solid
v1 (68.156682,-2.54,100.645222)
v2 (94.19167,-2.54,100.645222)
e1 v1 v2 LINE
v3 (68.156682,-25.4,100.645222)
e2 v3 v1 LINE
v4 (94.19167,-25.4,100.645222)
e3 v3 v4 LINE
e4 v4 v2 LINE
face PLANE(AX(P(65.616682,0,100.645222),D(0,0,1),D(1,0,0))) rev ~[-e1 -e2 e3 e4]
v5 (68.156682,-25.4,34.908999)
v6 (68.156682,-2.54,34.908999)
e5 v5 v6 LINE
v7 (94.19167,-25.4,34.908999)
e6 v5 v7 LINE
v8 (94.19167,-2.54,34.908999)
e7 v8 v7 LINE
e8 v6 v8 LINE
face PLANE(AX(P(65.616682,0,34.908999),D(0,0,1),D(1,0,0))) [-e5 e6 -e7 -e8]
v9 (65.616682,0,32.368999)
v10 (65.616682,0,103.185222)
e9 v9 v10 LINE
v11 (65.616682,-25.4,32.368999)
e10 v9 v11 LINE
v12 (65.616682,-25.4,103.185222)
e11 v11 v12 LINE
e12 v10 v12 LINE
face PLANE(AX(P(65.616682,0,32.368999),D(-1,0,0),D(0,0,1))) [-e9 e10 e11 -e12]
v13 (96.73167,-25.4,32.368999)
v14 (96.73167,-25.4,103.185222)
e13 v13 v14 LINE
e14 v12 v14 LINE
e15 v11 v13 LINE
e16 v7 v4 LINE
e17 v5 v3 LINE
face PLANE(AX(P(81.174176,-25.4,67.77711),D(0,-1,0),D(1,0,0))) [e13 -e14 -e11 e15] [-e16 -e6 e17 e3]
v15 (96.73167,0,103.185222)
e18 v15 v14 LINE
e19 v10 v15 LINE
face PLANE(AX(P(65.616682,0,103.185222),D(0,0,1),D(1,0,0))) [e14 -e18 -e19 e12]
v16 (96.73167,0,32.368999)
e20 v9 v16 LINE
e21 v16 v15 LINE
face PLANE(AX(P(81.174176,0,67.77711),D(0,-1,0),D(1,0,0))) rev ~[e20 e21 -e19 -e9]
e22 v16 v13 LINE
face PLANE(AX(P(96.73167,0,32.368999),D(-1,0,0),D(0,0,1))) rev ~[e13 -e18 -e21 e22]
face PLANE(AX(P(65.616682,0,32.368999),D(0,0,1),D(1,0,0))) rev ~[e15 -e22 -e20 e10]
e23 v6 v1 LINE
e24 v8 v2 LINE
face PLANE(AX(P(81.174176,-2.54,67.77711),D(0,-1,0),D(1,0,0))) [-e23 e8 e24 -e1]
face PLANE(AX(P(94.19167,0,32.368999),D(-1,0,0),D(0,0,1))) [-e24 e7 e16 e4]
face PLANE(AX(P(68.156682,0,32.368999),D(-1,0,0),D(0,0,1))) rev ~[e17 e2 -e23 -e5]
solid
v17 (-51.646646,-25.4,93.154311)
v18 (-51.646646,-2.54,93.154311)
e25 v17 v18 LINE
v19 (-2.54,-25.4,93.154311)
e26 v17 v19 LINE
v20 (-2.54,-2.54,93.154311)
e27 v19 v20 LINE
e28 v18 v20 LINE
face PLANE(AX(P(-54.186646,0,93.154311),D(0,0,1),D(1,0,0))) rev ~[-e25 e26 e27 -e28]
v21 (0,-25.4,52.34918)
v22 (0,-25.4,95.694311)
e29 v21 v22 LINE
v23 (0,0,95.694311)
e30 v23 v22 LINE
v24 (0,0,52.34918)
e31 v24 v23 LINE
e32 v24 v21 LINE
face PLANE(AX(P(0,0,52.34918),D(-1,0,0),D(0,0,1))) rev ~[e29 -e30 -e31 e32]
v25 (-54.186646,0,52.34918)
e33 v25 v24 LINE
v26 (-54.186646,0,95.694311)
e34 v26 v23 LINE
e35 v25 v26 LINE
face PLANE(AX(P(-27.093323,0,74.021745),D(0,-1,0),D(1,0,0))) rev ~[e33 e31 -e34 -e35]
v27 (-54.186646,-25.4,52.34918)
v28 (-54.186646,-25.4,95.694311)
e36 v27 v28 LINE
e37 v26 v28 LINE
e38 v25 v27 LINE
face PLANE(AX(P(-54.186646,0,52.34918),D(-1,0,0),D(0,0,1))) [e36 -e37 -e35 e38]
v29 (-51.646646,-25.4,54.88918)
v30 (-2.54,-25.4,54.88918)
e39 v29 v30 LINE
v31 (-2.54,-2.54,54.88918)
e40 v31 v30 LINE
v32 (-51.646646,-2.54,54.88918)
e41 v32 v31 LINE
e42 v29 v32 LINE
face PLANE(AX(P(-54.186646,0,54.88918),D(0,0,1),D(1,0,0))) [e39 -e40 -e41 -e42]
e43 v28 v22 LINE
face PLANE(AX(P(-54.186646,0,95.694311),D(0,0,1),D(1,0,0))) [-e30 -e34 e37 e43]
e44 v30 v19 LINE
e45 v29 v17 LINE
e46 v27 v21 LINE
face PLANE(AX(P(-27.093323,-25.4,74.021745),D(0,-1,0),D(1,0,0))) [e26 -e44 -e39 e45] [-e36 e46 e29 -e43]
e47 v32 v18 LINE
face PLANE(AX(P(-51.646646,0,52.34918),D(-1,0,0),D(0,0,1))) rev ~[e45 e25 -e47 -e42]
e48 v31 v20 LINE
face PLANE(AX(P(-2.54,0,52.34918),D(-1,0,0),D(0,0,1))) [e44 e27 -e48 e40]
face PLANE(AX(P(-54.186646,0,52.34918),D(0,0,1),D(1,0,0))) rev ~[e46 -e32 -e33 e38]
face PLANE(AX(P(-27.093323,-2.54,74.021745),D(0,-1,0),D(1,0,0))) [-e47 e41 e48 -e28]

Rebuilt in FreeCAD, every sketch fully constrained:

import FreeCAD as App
import Part
import Sketcher
Q = App.Units.Quantity


def faces_at(feature, points):
    """Names of the faces that lie closest to the given points."""
    faces = feature.Shape.Faces
    near = lambda p: min(range(len(faces)), key=lambda i: faces[i].distToShape(Part.Vertex(*p))[0])
    return sorted({f"Face{near(p) + 1}" for p in points})

doc = App.newDocument("Part")
params = doc.addObject("Spreadsheet::Sheet", "Params")
for row, (alias, value) in enumerate([
    ("pad1_length", "1 in"),
    ("thickness_wall", "0.1 in"),
    ("pad2_length", "1 in"),
    ("thickness2_wall", "0.1 in"),
], start=1):
    params.set(f"A{row}", alias)
    params.set(f"B{row}", "=" + value)
    params.setAlias(f"B{row}", alias)

body = doc.addObject("PartDesign::Body", "Body")

sketch1 = body.newObject("Sketcher::SketchObject", "Sketch")
sketch1.AttachmentSupport = (doc.getObject("XZ_Plane"), [""])
sketch1.MapMode = "FlatFace"
sketch1.addGeometry(Part.LineSegment(App.Vector(-54, 96, 0), App.Vector(-54, 52, 0)), False)
sketch1.addGeometry(Part.LineSegment(App.Vector(-54, 52, 0), App.Vector(0, 52, 0)), False)
sketch1.addGeometry(Part.LineSegment(App.Vector(0, 52, 0), App.Vector(0, 96, 0)), False)
sketch1.addGeometry(Part.LineSegment(App.Vector(0, 96, 0), App.Vector(-54, 96, 0)), False)
sketch1.addConstraint(Sketcher.Constraint("Coincident", 0, 2, 1, 1))
sketch1.addConstraint(Sketcher.Constraint("Coincident", 1, 2, 2, 1))
sketch1.addConstraint(Sketcher.Constraint("Coincident", 2, 2, 3, 1))
sketch1.addConstraint(Sketcher.Constraint("Coincident", 3, 2, 0, 1))
sketch1.addConstraint(Sketcher.Constraint("Vertical", 0))
sketch1.addConstraint(Sketcher.Constraint("Horizontal", 1))
sketch1.addConstraint(Sketcher.Constraint("Vertical", 2))
sketch1.addConstraint(Sketcher.Constraint("Horizontal", 3))
sketch1.addConstraint(Sketcher.Constraint("PointOnObject", 1, 2, -2))
sketch1.addConstraint(Sketcher.Constraint("DistanceY", 0, 2, 0, 1, Q("43.345131 mm")))
sketch1.addConstraint(Sketcher.Constraint("DistanceX", 1, 1, 1, 2, Q("54.186646 mm")))
sketch1.addConstraint(Sketcher.Constraint("DistanceY", -1, 1, 0, 2, Q("52.34918 mm")))
pad1 = body.newObject("PartDesign::Pad", "Pad")
pad1.Profile = sketch1
pad1.setExpression("Length", "Params.pad1_length")
doc.recompute()

thickness = body.newObject("PartDesign::Thickness", "Thickness")
thickness.Base = (pad1, faces_at(pad1, [(-27.093, -25.4, 74.022)]))
thickness.setExpression("Value", "Params.thickness_wall")
thickness.Reversed = True
thickness.Join = "Arc"
body2 = doc.addObject("PartDesign::Body", "Body001")

sketch2 = body2.newObject("Sketcher::SketchObject", "Sketch001")
sketch2.AttachmentSupport = (doc.getObject("XZ_Plane001"), [""])
sketch2.MapMode = "FlatFace"
sketch2.addGeometry(Part.LineSegment(App.Vector(66, 103, 0), App.Vector(66, 32, 0)), False)
sketch2.addGeometry(Part.LineSegment(App.Vector(66, 32, 0), App.Vector(97, 32, 0)), False)
sketch2.addGeometry(Part.LineSegment(App.Vector(97, 32, 0), App.Vector(97, 103, 0)), False)
sketch2.addGeometry(Part.LineSegment(App.Vector(97, 103, 0), App.Vector(66, 103, 0)), False)
sketch2.addConstraint(Sketcher.Constraint("Coincident", 0, 2, 1, 1))
sketch2.addConstraint(Sketcher.Constraint("Coincident", 1, 2, 2, 1))
sketch2.addConstraint(Sketcher.Constraint("Coincident", 2, 2, 3, 1))
sketch2.addConstraint(Sketcher.Constraint("Coincident", 3, 2, 0, 1))
sketch2.addConstraint(Sketcher.Constraint("Vertical", 0))
sketch2.addConstraint(Sketcher.Constraint("Horizontal", 1))
sketch2.addConstraint(Sketcher.Constraint("Vertical", 2))
sketch2.addConstraint(Sketcher.Constraint("Horizontal", 3))
sketch2.addConstraint(Sketcher.Constraint("DistanceX", 1, 1, 1, 2, Q("31.114988 mm")))
sketch2.addConstraint(Sketcher.Constraint("DistanceY", -1, 1, 0, 2, Q("32.368999 mm")))
sketch2.addConstraint(Sketcher.Constraint("DistanceY", 0, 2, 0, 1, Q("70.816223 mm")))
sketch2.addConstraint(Sketcher.Constraint("DistanceX", -1, 1, 1, 2, Q("96.73167 mm")))
pad2 = body2.newObject("PartDesign::Pad", "Pad001")
pad2.Profile = sketch2
pad2.setExpression("Length", "Params.pad2_length")
doc.recompute()

thickness2 = body2.newObject("PartDesign::Thickness", "Thickness001")
thickness2.Base = (pad2, faces_at(pad2, [(81.174, -25.4, 67.777)]))
thickness2.setExpression("Value", "Params.thickness2_wall")
thickness2.Reversed = True
thickness2.Join = "Arc"

doc.recompute()
